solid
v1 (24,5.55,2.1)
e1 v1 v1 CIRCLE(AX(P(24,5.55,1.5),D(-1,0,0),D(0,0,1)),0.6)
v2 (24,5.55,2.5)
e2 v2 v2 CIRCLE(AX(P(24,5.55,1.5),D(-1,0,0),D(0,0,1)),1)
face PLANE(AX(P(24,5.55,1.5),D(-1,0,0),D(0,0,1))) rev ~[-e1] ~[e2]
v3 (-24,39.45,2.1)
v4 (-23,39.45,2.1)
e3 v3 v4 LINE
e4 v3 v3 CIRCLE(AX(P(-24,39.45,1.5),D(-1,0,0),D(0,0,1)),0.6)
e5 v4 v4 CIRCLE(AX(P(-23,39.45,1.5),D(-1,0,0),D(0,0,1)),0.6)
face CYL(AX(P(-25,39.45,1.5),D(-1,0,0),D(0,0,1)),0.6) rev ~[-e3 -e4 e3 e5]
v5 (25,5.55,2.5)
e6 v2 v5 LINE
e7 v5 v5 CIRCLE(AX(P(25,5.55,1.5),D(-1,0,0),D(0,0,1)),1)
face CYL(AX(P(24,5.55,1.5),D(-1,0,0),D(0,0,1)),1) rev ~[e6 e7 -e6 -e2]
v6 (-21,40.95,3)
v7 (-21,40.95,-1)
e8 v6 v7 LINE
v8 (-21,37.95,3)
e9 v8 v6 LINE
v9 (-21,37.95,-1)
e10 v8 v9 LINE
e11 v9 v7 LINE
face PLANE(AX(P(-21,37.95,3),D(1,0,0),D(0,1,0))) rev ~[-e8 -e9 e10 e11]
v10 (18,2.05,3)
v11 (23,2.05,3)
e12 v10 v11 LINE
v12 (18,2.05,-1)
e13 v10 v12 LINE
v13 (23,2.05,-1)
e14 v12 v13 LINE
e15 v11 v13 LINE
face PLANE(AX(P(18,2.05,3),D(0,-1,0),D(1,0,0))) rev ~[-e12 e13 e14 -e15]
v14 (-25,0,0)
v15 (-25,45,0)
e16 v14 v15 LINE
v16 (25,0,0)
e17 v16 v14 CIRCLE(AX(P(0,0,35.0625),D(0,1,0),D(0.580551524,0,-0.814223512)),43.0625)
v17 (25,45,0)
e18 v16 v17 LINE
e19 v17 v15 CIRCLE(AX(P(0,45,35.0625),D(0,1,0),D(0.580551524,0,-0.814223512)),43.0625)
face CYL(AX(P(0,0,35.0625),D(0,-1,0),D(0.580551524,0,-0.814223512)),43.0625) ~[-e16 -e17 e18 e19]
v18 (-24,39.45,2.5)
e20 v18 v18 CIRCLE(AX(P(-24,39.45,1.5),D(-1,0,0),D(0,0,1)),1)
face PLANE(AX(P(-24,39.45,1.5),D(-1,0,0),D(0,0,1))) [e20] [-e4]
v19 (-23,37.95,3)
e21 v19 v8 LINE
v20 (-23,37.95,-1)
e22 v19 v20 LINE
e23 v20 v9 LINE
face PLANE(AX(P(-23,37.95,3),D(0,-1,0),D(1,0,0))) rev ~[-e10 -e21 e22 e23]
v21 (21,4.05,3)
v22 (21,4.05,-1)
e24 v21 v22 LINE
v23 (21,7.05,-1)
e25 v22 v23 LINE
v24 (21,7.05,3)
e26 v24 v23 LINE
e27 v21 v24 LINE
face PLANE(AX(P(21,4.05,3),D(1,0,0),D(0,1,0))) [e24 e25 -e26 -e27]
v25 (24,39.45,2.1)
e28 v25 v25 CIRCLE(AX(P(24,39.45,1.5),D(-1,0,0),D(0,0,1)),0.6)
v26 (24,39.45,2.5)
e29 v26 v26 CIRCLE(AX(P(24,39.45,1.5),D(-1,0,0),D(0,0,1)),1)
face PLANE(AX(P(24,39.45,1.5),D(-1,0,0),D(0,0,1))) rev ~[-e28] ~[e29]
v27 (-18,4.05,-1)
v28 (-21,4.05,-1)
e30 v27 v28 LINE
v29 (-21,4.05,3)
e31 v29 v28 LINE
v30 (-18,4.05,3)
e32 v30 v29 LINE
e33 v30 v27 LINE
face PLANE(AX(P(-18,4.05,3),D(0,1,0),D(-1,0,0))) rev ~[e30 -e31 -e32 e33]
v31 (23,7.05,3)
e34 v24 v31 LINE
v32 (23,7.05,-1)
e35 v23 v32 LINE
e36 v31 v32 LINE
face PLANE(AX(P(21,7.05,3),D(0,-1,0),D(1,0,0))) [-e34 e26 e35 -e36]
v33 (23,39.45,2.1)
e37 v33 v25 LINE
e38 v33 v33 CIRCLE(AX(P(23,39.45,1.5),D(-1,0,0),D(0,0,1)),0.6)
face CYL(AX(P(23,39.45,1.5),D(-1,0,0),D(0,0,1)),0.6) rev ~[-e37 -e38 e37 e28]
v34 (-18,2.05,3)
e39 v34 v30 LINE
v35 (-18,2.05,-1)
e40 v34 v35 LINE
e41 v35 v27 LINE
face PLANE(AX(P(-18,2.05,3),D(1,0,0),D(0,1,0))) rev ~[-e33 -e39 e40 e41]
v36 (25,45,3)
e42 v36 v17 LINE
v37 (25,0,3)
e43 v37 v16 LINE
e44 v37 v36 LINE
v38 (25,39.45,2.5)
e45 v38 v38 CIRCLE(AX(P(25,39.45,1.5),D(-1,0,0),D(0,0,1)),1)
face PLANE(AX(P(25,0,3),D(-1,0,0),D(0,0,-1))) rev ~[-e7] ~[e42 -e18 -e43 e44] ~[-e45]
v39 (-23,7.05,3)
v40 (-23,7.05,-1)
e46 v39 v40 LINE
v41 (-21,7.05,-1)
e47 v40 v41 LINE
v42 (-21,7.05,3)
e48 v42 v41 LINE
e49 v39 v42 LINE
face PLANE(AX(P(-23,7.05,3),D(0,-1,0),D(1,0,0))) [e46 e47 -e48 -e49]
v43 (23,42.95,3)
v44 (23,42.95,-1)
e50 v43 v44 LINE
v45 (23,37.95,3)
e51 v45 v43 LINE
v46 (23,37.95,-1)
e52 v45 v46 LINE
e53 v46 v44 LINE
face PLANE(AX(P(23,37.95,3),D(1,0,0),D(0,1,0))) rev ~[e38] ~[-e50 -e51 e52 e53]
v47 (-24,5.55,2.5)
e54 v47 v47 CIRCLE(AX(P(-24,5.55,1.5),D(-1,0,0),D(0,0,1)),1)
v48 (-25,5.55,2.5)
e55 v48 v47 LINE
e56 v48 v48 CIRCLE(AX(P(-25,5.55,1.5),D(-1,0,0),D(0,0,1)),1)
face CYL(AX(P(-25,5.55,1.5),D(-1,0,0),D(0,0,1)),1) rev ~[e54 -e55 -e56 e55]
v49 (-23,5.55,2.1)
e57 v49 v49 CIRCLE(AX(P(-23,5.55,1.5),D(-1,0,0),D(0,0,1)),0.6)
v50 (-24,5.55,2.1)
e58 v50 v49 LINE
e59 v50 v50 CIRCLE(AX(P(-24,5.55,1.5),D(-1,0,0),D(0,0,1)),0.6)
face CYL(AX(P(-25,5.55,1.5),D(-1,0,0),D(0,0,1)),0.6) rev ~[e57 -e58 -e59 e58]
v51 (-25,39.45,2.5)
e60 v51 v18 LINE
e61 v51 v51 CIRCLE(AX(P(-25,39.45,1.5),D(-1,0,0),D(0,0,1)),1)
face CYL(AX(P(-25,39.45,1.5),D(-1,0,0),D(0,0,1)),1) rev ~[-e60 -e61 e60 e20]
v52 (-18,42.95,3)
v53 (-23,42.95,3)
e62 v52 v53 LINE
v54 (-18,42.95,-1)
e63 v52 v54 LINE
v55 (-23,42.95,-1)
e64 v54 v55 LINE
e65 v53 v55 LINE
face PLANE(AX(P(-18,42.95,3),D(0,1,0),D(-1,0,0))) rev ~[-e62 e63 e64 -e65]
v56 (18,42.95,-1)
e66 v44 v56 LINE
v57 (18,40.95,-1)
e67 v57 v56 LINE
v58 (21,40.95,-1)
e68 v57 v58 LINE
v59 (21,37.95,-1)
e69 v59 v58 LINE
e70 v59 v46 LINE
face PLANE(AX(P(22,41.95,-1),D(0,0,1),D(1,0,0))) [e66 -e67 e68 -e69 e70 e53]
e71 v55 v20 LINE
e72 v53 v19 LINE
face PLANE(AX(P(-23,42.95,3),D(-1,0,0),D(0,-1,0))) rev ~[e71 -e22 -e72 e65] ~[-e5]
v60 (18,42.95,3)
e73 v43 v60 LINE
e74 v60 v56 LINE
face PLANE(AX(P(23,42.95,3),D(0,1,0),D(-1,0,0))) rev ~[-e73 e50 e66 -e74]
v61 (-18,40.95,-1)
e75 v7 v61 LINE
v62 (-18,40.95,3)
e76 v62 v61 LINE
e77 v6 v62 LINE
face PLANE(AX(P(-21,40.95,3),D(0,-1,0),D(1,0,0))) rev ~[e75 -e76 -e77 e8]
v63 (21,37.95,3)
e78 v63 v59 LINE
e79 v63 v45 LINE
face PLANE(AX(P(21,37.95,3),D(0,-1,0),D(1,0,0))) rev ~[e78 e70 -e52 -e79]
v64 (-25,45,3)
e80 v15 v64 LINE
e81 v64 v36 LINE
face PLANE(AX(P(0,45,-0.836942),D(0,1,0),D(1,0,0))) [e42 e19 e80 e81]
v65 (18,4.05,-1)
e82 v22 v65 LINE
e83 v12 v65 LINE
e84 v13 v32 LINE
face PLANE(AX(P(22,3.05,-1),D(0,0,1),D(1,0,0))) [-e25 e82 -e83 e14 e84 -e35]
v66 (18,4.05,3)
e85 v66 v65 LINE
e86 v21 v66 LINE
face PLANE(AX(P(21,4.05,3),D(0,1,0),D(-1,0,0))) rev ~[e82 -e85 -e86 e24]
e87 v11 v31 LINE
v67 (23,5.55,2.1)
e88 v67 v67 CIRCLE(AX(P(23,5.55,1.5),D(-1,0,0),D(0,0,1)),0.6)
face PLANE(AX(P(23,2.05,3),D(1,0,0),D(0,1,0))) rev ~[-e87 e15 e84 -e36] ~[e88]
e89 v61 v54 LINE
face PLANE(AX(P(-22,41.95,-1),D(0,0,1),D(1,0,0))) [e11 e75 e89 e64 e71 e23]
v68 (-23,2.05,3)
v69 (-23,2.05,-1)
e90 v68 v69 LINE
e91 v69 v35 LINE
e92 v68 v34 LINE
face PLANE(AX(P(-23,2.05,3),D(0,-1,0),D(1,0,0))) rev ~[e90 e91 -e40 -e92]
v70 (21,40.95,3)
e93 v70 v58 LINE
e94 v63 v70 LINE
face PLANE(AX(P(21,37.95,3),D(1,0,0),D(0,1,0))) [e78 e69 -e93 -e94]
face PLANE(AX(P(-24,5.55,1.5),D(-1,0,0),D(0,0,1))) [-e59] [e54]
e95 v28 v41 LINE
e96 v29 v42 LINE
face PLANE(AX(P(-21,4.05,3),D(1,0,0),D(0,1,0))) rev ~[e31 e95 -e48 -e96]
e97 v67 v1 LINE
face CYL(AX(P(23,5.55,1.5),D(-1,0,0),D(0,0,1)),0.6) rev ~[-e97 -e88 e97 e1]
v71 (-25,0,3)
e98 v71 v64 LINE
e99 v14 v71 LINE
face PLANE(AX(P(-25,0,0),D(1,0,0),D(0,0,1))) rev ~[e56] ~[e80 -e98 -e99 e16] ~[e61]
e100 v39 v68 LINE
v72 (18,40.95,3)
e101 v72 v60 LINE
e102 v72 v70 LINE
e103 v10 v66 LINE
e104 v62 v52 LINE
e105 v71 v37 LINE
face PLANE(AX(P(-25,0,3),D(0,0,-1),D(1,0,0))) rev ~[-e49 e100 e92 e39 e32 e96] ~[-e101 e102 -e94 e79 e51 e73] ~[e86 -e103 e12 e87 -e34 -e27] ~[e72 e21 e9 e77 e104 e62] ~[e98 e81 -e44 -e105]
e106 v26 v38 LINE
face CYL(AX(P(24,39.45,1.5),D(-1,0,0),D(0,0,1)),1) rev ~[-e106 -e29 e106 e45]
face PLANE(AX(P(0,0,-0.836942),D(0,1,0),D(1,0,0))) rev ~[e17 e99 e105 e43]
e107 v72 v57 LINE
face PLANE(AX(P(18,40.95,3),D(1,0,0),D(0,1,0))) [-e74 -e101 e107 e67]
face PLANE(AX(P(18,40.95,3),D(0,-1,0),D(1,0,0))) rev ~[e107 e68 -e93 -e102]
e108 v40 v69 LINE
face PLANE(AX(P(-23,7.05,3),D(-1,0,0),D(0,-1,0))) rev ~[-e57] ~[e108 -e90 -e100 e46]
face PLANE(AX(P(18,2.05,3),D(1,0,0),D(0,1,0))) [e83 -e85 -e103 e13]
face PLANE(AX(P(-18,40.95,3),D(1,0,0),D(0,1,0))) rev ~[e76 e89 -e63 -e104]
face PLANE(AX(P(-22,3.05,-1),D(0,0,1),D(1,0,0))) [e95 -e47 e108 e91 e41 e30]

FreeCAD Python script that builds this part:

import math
import FreeCAD as App
import Part
import Sketcher
from FreeCAD import Vector
Q = App.Units.Quantity

doc = App.newDocument("Part")
body = doc.addObject("PartDesign::Body", "Body")

# Sketch on XZ plane
sketch1 = body.newObject("Sketcher::SketchObject", "Sketch")
sketch1.AttachmentSupport = (doc.getObject("XZ_Plane"), [""])
sketch1.MapMode = "FlatFace"
sketch1.addGeometry(Part.LineSegment(Vector(-25, 0, 0), Vector(-25, 3, 0)), False)
sketch1.addGeometry(Part.LineSegment(Vector(-25, 3, 0), Vector(25, 3, 0)), False)
sketch1.addGeometry(Part.LineSegment(Vector(25, 3, 0), Vector(25, 0, 0)), False)
sketch1.addGeometry(Part.ArcOfCircle(Part.Circle(Vector(0, 35.1, 0), Vector(0, 0, 1), 43.1), math.radians(-125), math.radians(-55)), False)
sketch1.addConstraint(Sketcher.Constraint("Coincident", 0, 2, 1, 1))
sketch1.addConstraint(Sketcher.Constraint("Coincident", 1, 2, 2, 1))
sketch1.addConstraint(Sketcher.Constraint("Coincident", 2, 2, 3, 2))
sketch1.addConstraint(Sketcher.Constraint("Coincident", 3, 1, 0, 1))
sketch1.addConstraint(Sketcher.Constraint("Vertical", 0))
sketch1.addConstraint(Sketcher.Constraint("Horizontal", 1))
sketch1.addConstraint(Sketcher.Constraint("Vertical", 2))
sketch1.addConstraint(Sketcher.Constraint("Symmetric", 2, 2, 3, 1, -1, 1))
sketch1.addConstraint(Sketcher.Constraint("PointOnObject", 3, 3, -2))
sketch1.addConstraint(Sketcher.Constraint("DistanceX", 1, 1, 1, 2, Q("50 mm")))
sketch1.addConstraint(Sketcher.Constraint("DistanceY", 0, 1, 0, 2, Q("3 mm")))
sketch1.addConstraint(Sketcher.Constraint("Radius", 3, Q("43.0625 mm")))
pad1 = body.newObject("PartDesign::Pad", "Pad")
pad1.Profile = sketch1
pad1.Length = 45
pad1.Reversed = True

# Sketch on XY plane
sketch2 = body.newObject("Sketcher::SketchObject", "Sketch001")
sketch2.AttachmentSupport = (doc.getObject("XY_Plane"), [""])
sketch2.MapMode = "FlatFace"
sketch2.AttachmentOffset = App.Placement(Vector(0, 0, 3), App.Rotation())
sketch2.addGeometry(Part.LineSegment(Vector(-23, 43, 0), Vector(-23, 38, 0)), False)
sketch2.addGeometry(Part.LineSegment(Vector(-23, 38, 0), Vector(-21, 38, 0)), False)
sketch2.addGeometry(Part.LineSegment(Vector(-21, 38, 0), Vector(-21, 41, 0)), False)
sketch2.addGeometry(Part.LineSegment(Vector(-21, 41, 0), Vector(-18, 41, 0)), False)
sketch2.addGeometry(Part.LineSegment(Vector(-18, 41, 0), Vector(-18, 43, 0)), False)
sketch2.addGeometry(Part.LineSegment(Vector(-18, 43, 0), Vector(-23, 43, 0)), False)
sketch2.addGeometry(Part.LineSegment(Vector(23, 43, 0), Vector(18, 43, 0)), False)
sketch2.addGeometry(Part.LineSegment(Vector(18, 43, 0), Vector(18, 41, 0)), False)
sketch2.addGeometry(Part.LineSegment(Vector(18, 41, 0), Vector(21, 41, 0)), False)
sketch2.addGeometry(Part.LineSegment(Vector(21, 41, 0), Vector(21, 38, 0)), False)
sketch2.addGeometry(Part.LineSegment(Vector(21, 38, 0), Vector(23, 38, 0)), False)
sketch2.addGeometry(Part.LineSegment(Vector(23, 38, 0), Vector(23, 43, 0)), False)
sketch2.addGeometry(Part.LineSegment(Vector(-23, 2, 0), Vector(-18, 2, 0)), False)
sketch2.addGeometry(Part.LineSegment(Vector(-18, 2, 0), Vector(-18, 4, 0)), False)
sketch2.addGeometry(Part.LineSegment(Vector(-18, 4, 0), Vector(-21, 4, 0)), False)
sketch2.addGeometry(Part.LineSegment(Vector(-21, 4, 0), Vector(-21, 7, 0)), False)
sketch2.addGeometry(Part.LineSegment(Vector(-21, 7, 0), Vector(-23, 7, 0)), False)
sketch2.addGeometry(Part.LineSegment(Vector(-23, 7, 0), Vector(-23, 2, 0)), False)
sketch2.addGeometry(Part.LineSegment(Vector(23, 2, 0), Vector(23, 7, 0)), False)
sketch2.addGeometry(Part.LineSegment(Vector(23, 7, 0), Vector(21, 7, 0)), False)
sketch2.addGeometry(Part.LineSegment(Vector(21, 7, 0), Vector(21, 4, 0)), False)
sketch2.addGeometry(Part.LineSegment(Vector(21, 4, 0), Vector(18, 4, 0)), False)
sketch2.addGeometry(Part.LineSegment(Vector(18, 4, 0), Vector(18, 2, 0)), False)
sketch2.addGeometry(Part.LineSegment(Vector(18, 2, 0), Vector(23, 2, 0)), False)
sketch2.addConstraint(Sketcher.Constraint("Coincident", 0, 2, 1, 1))
sketch2.addConstraint(Sketcher.Constraint("Coincident", 1, 2, 2, 1))
sketch2.addConstraint(Sketcher.Constraint("Coincident", 2, 2, 3, 1))
sketch2.addConstraint(Sketcher.Constraint("Coincident", 3, 2, 4, 1))
sketch2.addConstraint(Sketcher.Constraint("Coincident", 4, 2, 5, 1))
sketch2.addConstraint(Sketcher.Constraint("Coincident", 5, 2, 0, 1))
sketch2.addConstraint(Sketcher.Constraint("Coincident", 6, 2, 7, 1))
sketch2.addConstraint(Sketcher.Constraint("Coincident", 7, 2, 8, 1))
sketch2.addConstraint(Sketcher.Constraint("Coincident", 8, 2, 9, 1))
sketch2.addConstraint(Sketcher.Constraint("Coincident", 9, 2, 10, 1))
sketch2.addConstraint(Sketcher.Constraint("Coincident", 10, 2, 11, 1))
sketch2.addConstraint(Sketcher.Constraint("Coincident", 11, 2, 6, 1))
sketch2.addConstraint(Sketcher.Constraint("Coincident", 12, 2, 13, 1))
sketch2.addConstraint(Sketcher.Constraint("Coincident", 13, 2, 14, 1))
sketch2.addConstraint(Sketcher.Constraint("Coincident", 14, 2, 15, 1))
sketch2.addConstraint(Sketcher.Constraint("Coincident", 15, 2, 16, 1))
sketch2.addConstraint(Sketcher.Constraint("Coincident", 16, 2, 17, 1))
sketch2.addConstraint(Sketcher.Constraint("Coincident", 17, 2, 12, 1))
sketch2.addConstraint(Sketcher.Constraint("Coincident", 18, 2, 19, 1))
sketch2.addConstraint(Sketcher.Constraint("Coincident", 19, 2, 20, 1))
sketch2.addConstraint(Sketcher.Constraint("Coincident", 20, 2, 21, 1))
sketch2.addConstraint(Sketcher.Constraint("Coincident", 21, 2, 22, 1))
sketch2.addConstraint(Sketcher.Constraint("Coincident", 22, 2, 23, 1))
sketch2.addConstraint(Sketcher.Constraint("Coincident", 23, 2, 18, 1))
sketch2.addConstraint(Sketcher.Constraint("Vertical", 0))
sketch2.addConstraint(Sketcher.Constraint("Horizontal", 1))
sketch2.addConstraint(Sketcher.Constraint("Vertical", 2))
sketch2.addConstraint(Sketcher.Constraint("Horizontal", 3))
sketch2.addConstraint(Sketcher.Constraint("Vertical", 4))
sketch2.addConstraint(Sketcher.Constraint("Horizontal", 5))
sketch2.addConstraint(Sketcher.Constraint("Horizontal", 6))
sketch2.addConstraint(Sketcher.Constraint("Vertical", 7))
sketch2.addConstraint(Sketcher.Constraint("Horizontal", 8))
sketch2.addConstraint(Sketcher.Constraint("Vertical", 9))
sketch2.addConstraint(Sketcher.Constraint("Horizontal", 10))
sketch2.addConstraint(Sketcher.Constraint("Vertical", 11))
sketch2.addConstraint(Sketcher.Constraint("Horizontal", 12))
sketch2.addConstraint(Sketcher.Constraint("Vertical", 13))
sketch2.addConstraint(Sketcher.Constraint("Horizontal", 14))
sketch2.addConstraint(Sketcher.Constraint("Vertical", 15))
sketch2.addConstraint(Sketcher.Constraint("Horizontal", 16))
sketch2.addConstraint(Sketcher.Constraint("Vertical", 17))
sketch2.addConstraint(Sketcher.Constraint("Vertical", 18))
sketch2.addConstraint(Sketcher.Constraint("Horizontal", 19))
sketch2.addConstraint(Sketcher.Constraint("Vertical", 20))
sketch2.addConstraint(Sketcher.Constraint("Horizontal", 21))
sketch2.addConstraint(Sketcher.Constraint("Vertical", 22))
sketch2.addConstraint(Sketcher.Constraint("Horizontal", 23))
sketch2.addConstraint(Sketcher.Constraint("Symmetric", 4, 2, 6, 2, -2))
sketch2.addConstraint(Sketcher.Constraint("Symmetric", 2, 2, 8, 2, -2))
sketch2.addConstraint(Sketcher.Constraint("Symmetric", 0, 2, 10, 2, -2))
sketch2.addConstraint(Sketcher.Constraint("Symmetric", 16, 2, 18, 2, -2))
sketch2.addConstraint(Sketcher.Constraint("Symmetric", 14, 2, 20, 2, -2))
sketch2.addConstraint(Sketcher.Constraint("Symmetric", 12, 2, 22, 2, -2))
sketch2.addConstraint(Sketcher.Constraint("Vertical", 4, 2, 12, 2))
sketch2.addConstraint(Sketcher.Constraint("Vertical", 2, 2, 14, 2))
sketch2.addConstraint(Sketcher.Constraint("Vertical", 5, 2, 16, 2))
sketch2.addConstraint(Sketcher.Constraint("Equal", 23, 0))
sketch2.addConstraint(Sketcher.Constraint("Equal", 21, 2))
sketch2.addConstraint(Sketcher.Constraint("Equal", 7, 13))
sketch2.addConstraint(Sketcher.Constraint("Equal", 9, 15))
sketch2.addConstraint(Sketcher.Constraint("DistanceX", 1, 1, 1, 2, Q("2 mm")))
sketch2.addConstraint(Sketcher.Constraint("DistanceX", 3, 1, 3, 2, Q("3 mm")))
sketch2.addConstraint(Sketcher.Constraint("DistanceX", 0, 2, -1, 1, Q("23 mm")))
sketch2.addConstraint(Sketcher.Constraint("DistanceY", 12, 2, 1, 2, Q("35.9 mm")))
sketch2.addConstraint(Sketcher.Constraint("DistanceY", -1, 1, 0, 2, Q("37.95 mm")))
pocket1 = body.newObject("PartDesign::Pocket", "Pocket")
pocket1.Profile = sketch2
pocket1.Length = 4

# Sketch on YZ plane
sketch3 = body.newObject("Sketcher::SketchObject", "Sketch002")
sketch3.AttachmentSupport = (doc.getObject("YZ_Plane"), [""])
sketch3.MapMode = "FlatFace"
sketch3.AttachmentOffset = App.Placement(Vector(0, 0, -25), App.Rotation())
sketch3.addGeometry(Part.Circle(Vector(5.5, 1.5, 0), Vector(0, 0, 1), 0.6), False)
sketch3.addGeometry(Part.Circle(Vector(39.5, 1.5, 0), Vector(0, 0, 1), 0.6), False)
sketch3.addConstraint(Sketcher.Constraint("Equal", 0, 1))
sketch3.addConstraint(Sketcher.Constraint("Horizontal", 0, 3, 1, 3))
sketch3.addConstraint(Sketcher.Constraint("Diameter", 0, Q("1.2 mm")))
sketch3.addConstraint(Sketcher.Constraint("DistanceY", -1, 1, 0, 3, Q("1.5 mm")))
sketch3.addConstraint(Sketcher.Constraint("DistanceX", 0, 3, 1, 3, Q("33.9 mm")))
sketch3.addConstraint(Sketcher.Constraint("DistanceX", -1, 1, 0, 3, Q("5.55 mm")))
pocket2 = body.newObject("PartDesign::Pocket", "Pocket001")
pocket2.Profile = sketch3
pocket2.Length = 2
pocket2.Reversed = True

# Sketch on YZ plane
sketch4 = body.newObject("Sketcher::SketchObject", "Sketch003")
sketch4.AttachmentSupport = (doc.getObject("YZ_Plane"), [""])
sketch4.MapMode = "FlatFace"
sketch4.AttachmentOffset = App.Placement(Vector(0, 0, -25), App.Rotation())
sketch4.addGeometry(Part.Circle(Vector(5.5, 1.5, 0), Vector(0, 0, 1), 1), False)
sketch4.addGeometry(Part.Circle(Vector(39.5, 1.5, 0), Vector(0, 0, 1), 1), False)
sketch4.addConstraint(Sketcher.Constraint("Equal", 0, 1))
sketch4.addConstraint(Sketcher.Constraint("Horizontal", 0, 3, 1, 3))
sketch4.addConstraint(Sketcher.Constraint("Diameter", 0, Q("2 mm")))
sketch4.addConstraint(Sketcher.Constraint("DistanceY", -1, 1, 0, 3, Q("1.5 mm")))
sketch4.addConstraint(Sketcher.Constraint("DistanceX", 0, 3, 1, 3, Q("33.9 mm")))
sketch4.addConstraint(Sketcher.Constraint("DistanceX", -1, 1, 0, 3, Q("5.55 mm")))
pocket3 = body.newObject("PartDesign::Pocket", "Pocket002")
pocket3.Profile = sketch4
pocket3.Length = 1
pocket3.Reversed = True

# Sketch on YZ plane
sketch5 = body.newObject("Sketcher::SketchObject", "Sketch004")
sketch5.AttachmentSupport = (doc.getObject("YZ_Plane"), [""])
sketch5.MapMode = "FlatFace"
sketch5.AttachmentOffset = App.Placement(Vector(0, 0, 23), App.Rotation())
sketch5.addGeometry(Part.Circle(Vector(5.5, 1.5, 0), Vector(0, 0, 1), 0.6), False)
sketch5.addGeometry(Part.Circle(Vector(39.5, 1.5, 0), Vector(0, 0, 1), 0.6), False)
sketch5.addConstraint(Sketcher.Constraint("Equal", 0, 1))
sketch5.addConstraint(Sketcher.Constraint("Horizontal", 0, 3, 1, 3))
sketch5.addConstraint(Sketcher.Constraint("Diameter", 0, Q("1.2 mm")))
sketch5.addConstraint(Sketcher.Constraint("DistanceY", -1, 1, 0, 3, Q("1.5 mm")))
sketch5.addConstraint(Sketcher.Constraint("DistanceX", 0, 3, 1, 3, Q("33.9 mm")))
sketch5.addConstraint(Sketcher.Constraint("DistanceX", -1, 1, 0, 3, Q("5.55 mm")))
pocket4 = body.newObject("PartDesign::Pocket", "Pocket003")
pocket4.Profile = sketch5
pocket4.Length = 2
pocket4.Reversed = True

# Sketch on YZ plane
sketch6 = body.newObject("Sketcher::SketchObject", "Sketch005")
sketch6.AttachmentSupport = (doc.getObject("YZ_Plane"), [""])
sketch6.MapMode = "FlatFace"
sketch6.AttachmentOffset = App.Placement(Vector(0, 0, 24), App.Rotation())
sketch6.addGeometry(Part.Circle(Vector(5.5, 1.5, 0), Vector(0, 0, 1), 1), False)
sketch6.addGeometry(Part.Circle(Vector(39.5, 1.5, 0), Vector(0, 0, 1), 1), False)
sketch6.addConstraint(Sketcher.Constraint("Equal", 0, 1))
sketch6.addConstraint(Sketcher.Constraint("Horizontal", 0, 3, 1, 3))
sketch6.addConstraint(Sketcher.Constraint("Diameter", 0, Q("2 mm")))
sketch6.addConstraint(Sketcher.Constraint("DistanceY", -1, 1, 0, 3, Q("1.5 mm")))
sketch6.addConstraint(Sketcher.Constraint("DistanceX", 0, 3, 1, 3, Q("33.9 mm")))
sketch6.addConstraint(Sketcher.Constraint("DistanceX", -1, 1, 0, 3, Q("5.55 mm")))
pocket5 = body.newObject("PartDesign::Pocket", "Pocket004")
pocket5.Profile = sketch6
pocket5.Length = 1
pocket5.Reversed = True

doc.recompute()
